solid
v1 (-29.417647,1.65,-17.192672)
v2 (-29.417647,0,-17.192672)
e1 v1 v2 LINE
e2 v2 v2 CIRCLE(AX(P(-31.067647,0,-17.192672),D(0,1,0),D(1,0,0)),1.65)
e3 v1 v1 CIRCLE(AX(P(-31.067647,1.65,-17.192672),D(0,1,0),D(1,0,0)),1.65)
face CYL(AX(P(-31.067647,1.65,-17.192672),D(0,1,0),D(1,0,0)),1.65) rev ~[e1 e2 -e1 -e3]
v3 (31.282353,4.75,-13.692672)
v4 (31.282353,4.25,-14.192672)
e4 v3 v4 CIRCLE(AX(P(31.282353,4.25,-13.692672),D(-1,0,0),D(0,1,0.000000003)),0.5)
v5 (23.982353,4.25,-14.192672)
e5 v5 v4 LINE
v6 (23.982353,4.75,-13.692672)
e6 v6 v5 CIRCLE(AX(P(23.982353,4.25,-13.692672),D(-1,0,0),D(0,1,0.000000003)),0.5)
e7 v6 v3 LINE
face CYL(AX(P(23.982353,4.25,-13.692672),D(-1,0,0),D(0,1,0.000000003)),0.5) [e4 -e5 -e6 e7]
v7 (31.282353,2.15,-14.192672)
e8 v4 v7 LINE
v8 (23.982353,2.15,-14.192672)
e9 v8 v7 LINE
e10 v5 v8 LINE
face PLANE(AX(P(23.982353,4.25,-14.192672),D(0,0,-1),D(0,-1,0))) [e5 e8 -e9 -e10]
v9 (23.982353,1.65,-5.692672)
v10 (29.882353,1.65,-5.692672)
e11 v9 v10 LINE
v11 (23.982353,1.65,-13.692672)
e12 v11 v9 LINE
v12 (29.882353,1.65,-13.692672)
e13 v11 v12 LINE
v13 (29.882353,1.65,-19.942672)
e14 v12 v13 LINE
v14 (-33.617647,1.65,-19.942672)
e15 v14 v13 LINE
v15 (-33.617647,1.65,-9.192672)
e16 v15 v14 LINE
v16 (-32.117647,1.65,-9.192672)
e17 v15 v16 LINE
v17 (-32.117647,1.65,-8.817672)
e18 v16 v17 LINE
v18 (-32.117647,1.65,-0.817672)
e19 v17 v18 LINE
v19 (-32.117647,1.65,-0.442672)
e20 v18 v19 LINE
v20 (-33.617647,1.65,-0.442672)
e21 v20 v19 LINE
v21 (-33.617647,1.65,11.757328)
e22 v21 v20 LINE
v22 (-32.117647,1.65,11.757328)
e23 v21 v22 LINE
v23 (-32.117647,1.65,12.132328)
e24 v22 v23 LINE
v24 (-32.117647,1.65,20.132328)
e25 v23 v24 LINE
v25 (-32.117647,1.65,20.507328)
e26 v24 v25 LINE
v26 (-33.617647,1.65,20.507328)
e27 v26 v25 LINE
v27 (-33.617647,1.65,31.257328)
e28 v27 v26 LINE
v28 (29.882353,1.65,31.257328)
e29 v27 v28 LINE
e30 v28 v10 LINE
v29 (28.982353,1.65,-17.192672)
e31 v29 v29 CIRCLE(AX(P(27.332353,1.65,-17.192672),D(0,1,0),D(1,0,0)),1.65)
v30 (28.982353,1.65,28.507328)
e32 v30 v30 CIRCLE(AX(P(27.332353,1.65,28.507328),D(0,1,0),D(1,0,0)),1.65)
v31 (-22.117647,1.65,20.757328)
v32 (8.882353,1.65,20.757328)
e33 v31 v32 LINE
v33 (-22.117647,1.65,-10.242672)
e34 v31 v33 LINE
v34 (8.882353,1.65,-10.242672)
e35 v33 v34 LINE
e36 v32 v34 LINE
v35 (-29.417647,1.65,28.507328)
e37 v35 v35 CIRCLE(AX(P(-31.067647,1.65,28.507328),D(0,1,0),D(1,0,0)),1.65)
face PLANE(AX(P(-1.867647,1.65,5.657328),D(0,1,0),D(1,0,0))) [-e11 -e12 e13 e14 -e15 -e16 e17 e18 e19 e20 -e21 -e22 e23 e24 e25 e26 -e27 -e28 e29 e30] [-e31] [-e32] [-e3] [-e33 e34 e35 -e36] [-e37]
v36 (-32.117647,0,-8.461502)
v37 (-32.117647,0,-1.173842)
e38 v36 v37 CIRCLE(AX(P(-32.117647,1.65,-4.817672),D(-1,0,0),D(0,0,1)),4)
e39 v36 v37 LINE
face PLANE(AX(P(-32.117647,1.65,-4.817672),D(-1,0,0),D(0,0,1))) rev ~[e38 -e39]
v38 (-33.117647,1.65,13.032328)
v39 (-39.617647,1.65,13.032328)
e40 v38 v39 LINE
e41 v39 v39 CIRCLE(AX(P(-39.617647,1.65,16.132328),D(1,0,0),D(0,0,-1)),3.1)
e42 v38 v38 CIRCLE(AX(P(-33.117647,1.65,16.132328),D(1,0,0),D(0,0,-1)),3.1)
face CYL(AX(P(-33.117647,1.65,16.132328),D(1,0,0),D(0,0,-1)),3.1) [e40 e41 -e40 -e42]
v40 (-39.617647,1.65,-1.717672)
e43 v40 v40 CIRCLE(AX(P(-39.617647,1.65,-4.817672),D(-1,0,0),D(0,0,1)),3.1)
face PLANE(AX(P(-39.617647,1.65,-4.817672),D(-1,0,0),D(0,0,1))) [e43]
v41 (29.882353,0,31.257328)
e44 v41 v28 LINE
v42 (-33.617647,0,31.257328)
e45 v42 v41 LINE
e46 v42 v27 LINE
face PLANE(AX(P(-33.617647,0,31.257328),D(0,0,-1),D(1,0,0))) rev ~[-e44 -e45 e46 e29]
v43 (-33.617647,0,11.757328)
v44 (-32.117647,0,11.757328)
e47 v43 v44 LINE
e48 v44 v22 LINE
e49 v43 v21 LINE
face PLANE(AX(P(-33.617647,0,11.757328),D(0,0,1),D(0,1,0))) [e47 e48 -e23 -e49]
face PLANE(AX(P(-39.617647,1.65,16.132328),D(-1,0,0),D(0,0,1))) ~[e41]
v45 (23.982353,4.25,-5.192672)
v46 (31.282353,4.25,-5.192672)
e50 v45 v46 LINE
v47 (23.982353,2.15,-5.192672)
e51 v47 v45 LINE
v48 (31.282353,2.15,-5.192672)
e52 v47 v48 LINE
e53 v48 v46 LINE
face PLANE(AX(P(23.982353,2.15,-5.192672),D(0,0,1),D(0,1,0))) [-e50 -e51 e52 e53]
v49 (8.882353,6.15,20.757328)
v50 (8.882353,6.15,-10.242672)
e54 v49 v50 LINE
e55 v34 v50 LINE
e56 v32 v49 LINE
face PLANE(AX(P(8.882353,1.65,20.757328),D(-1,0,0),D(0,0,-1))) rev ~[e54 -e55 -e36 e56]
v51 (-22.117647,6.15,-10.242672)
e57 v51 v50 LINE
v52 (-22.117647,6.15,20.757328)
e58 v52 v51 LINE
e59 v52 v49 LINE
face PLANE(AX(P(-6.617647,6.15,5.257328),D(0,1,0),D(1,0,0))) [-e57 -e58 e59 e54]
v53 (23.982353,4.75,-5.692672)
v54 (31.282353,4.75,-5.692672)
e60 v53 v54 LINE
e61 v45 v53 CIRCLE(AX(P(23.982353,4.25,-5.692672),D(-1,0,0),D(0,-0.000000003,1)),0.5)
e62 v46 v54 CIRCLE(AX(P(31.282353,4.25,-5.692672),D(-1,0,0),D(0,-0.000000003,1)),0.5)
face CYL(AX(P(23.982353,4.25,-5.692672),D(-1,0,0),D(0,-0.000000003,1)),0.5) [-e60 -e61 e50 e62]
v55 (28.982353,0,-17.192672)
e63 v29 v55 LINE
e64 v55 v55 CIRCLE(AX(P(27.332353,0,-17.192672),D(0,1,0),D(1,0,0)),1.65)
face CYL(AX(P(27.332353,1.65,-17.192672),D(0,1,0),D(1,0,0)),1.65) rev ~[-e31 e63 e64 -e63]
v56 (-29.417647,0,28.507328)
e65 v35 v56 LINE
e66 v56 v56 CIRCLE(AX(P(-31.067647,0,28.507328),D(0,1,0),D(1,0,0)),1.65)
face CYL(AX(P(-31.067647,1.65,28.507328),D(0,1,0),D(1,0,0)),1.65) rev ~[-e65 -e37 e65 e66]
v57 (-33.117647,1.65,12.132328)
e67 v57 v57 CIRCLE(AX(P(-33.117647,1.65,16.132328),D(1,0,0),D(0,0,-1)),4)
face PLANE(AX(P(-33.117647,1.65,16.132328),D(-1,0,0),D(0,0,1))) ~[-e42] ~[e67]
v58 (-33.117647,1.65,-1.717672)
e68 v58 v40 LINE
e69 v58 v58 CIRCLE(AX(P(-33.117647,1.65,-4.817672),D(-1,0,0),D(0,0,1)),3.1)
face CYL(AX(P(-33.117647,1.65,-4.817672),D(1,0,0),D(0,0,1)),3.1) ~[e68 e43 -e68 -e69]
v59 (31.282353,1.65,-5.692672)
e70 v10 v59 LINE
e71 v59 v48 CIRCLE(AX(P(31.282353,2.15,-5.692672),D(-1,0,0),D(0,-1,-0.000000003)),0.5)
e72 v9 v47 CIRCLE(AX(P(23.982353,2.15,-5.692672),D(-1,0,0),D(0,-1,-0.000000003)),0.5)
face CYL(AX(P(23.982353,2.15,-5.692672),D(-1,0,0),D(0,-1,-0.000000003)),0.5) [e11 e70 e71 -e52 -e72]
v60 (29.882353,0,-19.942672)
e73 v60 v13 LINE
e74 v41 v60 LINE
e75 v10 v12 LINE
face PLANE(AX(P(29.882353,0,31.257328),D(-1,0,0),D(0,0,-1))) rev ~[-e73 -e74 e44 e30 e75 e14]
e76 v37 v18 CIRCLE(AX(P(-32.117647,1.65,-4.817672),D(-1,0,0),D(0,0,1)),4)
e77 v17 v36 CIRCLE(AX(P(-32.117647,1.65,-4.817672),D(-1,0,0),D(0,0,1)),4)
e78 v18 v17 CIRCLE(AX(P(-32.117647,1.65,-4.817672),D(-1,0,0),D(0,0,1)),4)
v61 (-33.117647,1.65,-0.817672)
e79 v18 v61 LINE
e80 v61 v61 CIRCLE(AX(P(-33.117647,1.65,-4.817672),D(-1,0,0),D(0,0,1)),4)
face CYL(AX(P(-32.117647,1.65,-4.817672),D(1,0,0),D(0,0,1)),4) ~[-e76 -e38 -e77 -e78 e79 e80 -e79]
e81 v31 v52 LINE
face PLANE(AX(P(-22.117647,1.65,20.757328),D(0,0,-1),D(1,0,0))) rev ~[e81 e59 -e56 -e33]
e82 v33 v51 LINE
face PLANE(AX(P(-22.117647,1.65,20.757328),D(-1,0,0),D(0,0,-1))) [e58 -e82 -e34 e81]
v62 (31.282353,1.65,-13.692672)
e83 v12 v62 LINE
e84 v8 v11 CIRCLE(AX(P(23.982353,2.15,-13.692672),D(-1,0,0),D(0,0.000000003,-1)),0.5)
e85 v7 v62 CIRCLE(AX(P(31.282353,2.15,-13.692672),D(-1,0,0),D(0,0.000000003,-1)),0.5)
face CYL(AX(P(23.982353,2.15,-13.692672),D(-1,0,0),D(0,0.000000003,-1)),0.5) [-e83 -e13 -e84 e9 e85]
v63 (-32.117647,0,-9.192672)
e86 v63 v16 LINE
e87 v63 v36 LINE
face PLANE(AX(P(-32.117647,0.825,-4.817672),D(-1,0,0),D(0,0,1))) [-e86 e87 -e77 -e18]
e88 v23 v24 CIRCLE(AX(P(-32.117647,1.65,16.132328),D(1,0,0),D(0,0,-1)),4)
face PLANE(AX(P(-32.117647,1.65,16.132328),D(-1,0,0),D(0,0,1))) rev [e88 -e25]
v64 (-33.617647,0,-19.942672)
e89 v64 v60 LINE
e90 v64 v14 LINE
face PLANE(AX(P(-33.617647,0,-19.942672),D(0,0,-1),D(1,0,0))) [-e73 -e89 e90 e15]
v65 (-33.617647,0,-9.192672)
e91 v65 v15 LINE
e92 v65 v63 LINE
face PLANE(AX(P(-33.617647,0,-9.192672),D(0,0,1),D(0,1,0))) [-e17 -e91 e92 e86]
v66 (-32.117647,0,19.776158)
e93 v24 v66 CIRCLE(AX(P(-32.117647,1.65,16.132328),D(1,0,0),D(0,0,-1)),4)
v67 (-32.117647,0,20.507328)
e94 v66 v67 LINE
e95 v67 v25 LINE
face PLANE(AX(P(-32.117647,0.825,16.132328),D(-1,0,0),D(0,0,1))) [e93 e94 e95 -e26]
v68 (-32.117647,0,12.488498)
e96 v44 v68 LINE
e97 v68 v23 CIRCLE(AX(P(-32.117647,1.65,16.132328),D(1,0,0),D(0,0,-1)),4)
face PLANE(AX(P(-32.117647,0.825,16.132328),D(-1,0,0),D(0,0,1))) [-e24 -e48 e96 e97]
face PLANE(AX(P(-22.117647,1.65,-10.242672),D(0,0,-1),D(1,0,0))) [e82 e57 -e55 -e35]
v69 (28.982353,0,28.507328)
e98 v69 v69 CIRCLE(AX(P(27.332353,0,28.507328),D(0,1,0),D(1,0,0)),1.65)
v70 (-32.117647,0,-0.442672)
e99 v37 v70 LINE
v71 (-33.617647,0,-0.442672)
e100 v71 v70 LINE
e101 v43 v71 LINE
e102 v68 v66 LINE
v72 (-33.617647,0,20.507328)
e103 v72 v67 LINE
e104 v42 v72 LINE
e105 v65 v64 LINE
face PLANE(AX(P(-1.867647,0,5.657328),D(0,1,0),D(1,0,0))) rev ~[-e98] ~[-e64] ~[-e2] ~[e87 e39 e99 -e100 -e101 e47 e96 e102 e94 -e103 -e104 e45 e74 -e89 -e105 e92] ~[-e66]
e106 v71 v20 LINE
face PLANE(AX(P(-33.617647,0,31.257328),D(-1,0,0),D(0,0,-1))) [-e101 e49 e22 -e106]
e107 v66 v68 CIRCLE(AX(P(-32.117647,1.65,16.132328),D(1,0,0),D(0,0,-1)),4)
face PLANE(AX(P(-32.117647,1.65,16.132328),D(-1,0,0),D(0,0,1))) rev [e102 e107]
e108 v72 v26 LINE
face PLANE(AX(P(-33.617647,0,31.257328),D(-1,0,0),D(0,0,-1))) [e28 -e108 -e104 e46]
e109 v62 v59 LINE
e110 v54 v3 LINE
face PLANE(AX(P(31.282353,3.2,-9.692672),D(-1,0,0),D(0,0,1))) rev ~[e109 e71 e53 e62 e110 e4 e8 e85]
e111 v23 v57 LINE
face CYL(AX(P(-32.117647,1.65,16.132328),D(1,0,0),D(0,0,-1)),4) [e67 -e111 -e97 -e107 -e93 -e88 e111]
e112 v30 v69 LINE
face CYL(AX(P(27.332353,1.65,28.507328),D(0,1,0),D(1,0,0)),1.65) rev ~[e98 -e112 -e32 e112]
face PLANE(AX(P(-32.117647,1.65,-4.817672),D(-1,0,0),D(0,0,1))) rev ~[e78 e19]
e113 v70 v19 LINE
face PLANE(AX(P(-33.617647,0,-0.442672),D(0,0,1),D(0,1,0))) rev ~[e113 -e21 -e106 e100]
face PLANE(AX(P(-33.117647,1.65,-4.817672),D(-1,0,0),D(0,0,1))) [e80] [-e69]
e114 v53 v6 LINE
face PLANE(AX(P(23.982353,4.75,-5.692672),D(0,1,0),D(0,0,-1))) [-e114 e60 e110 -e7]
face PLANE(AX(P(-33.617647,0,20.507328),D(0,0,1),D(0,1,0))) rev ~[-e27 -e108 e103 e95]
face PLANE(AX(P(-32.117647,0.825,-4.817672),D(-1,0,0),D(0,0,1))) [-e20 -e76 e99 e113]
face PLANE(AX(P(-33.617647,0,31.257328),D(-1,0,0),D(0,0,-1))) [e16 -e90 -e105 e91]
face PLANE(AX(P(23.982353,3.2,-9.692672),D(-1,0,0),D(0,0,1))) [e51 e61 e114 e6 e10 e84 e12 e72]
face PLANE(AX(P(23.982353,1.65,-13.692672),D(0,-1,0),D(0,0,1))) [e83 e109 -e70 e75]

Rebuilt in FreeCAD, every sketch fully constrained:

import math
import FreeCAD as App
import Part
import Sketcher
Q = App.Units.Quantity


def add_polygon(sketch, points):
    """Adds a closed chain of lines whose ends are joined by coincident constraints."""
    first, n = sketch.GeometryCount, len(points)
    for a, b in zip(points, points[1:] + points[:1]):
        sketch.addGeometry(Part.LineSegment(App.Vector(*a, 0), App.Vector(*b, 0)), False)
    for i in range(n):
        sketch.addConstraint(Sketcher.Constraint("Coincident", first + i, 2, first + (i + 1) % n, 1))

doc = App.newDocument("Part")
body = doc.addObject("PartDesign::Body", "Body")

# Sketch on XZ plane
sketch1 = body.newObject("Sketcher::SketchObject", "Sketch")
sketch1.AttachmentSupport = (doc.getObject("XZ_Plane"), [""])
sketch1.MapMode = "FlatFace"
add_polygon(sketch1, [(-33.617647, -19.942672), (-33.617647, 31.257328), (29.882353, 31.257328), (29.882353, -19.942672)])  # lines 0-3
sketch1.addConstraint([
    Sketcher.Constraint("Vertical", 0),
    Sketcher.Constraint("Horizontal", 1),
    Sketcher.Constraint("Vertical", 2),
    Sketcher.Constraint("Horizontal", 3),
    Sketcher.Constraint("DistanceX", 1, 1, 1, 2, Q("63.5 mm")),
    Sketcher.Constraint("DistanceY", 0, 1, 0, 2, Q("51.2 mm")),
    Sketcher.Constraint("DistanceY", -1, 1, 0, 2, Q("31.257328 mm")),
    Sketcher.Constraint("DistanceX", 0, 2, -1, 1, Q("33.617647 mm")),
])
pad1 = body.newObject("PartDesign::Pad", "Pad")
pad1.Profile = sketch1
pad1.Length = 1.65
pad1.Reversed = True

# Sketch on XZ plane
sketch2 = body.newObject("Sketcher::SketchObject", "Sketch001")
sketch2.AttachmentSupport = (doc.getObject("XZ_Plane"), [""])
sketch2.MapMode = "FlatFace"
sketch2.AttachmentOffset = App.Placement(App.Vector(0, 0, -1.65), App.Rotation())
add_polygon(sketch2, [(-22.117647, -10.242672), (-22.117647, 20.757328), (8.882353, 20.757328), (8.882353, -10.242672)])  # lines 0-3
sketch2.addConstraint([
    Sketcher.Constraint("Vertical", 0),
    Sketcher.Constraint("Horizontal", 1),
    Sketcher.Constraint("Vertical", 2),
    Sketcher.Constraint("Horizontal", 3),
    Sketcher.Constraint("Equal", 3, 0),
    Sketcher.Constraint("DistanceX", 1, 1, 1, 2, Q("31 mm")),
    Sketcher.Constraint("DistanceY", -1, 1, 0, 2, Q("20.757328 mm")),
    Sketcher.Constraint("DistanceX", 0, 2, -1, 1, Q("22.117647 mm")),
])
pad2 = body.newObject("PartDesign::Pad", "Pad001")
pad2.Profile = sketch2
pad2.Length = 4.5
pad2.Reversed = True

# Sketch on YZ plane
sketch3 = body.newObject("Sketcher::SketchObject", "Sketch002")
sketch3.AttachmentSupport = (doc.getObject("YZ_Plane"), [""])
sketch3.MapMode = "FlatFace"
sketch3.AttachmentOffset = App.Placement(App.Vector(0, 0, -33.617647), App.Rotation())
add_polygon(sketch3, [(1.65, -9.192672), (0, -9.192672), (0, -0.442672), (1.65, -0.442672)])  # lines 0-3
add_polygon(sketch3, [(1.65, 11.757328), (0, 11.757328), (0, 20.507328), (1.65, 20.507328)])  # lines 4-7
sketch3.addConstraint([
    Sketcher.Constraint("Horizontal", 0),
    Sketcher.Constraint("Vertical", 1),
    Sketcher.Constraint("Horizontal", 2),
    Sketcher.Constraint("Vertical", 3),
    Sketcher.Constraint("Horizontal", 4),
    Sketcher.Constraint("Vertical", 5),
    Sketcher.Constraint("Horizontal", 6),
    Sketcher.Constraint("Vertical", 7),
    Sketcher.Constraint("PointOnObject", 0, 2, -2),
    Sketcher.Constraint("PointOnObject", 4, 2, -2),
    Sketcher.Constraint("Vertical", 3, 2, 6, 2),
    Sketcher.Constraint("Equal", 3, 5),
    Sketcher.Constraint("DistanceX", 0, 2, 0, 1, Q("1.65 mm")),
    Sketcher.Constraint("DistanceY", 1, 1, 1, 2, Q("8.75 mm")),
    Sketcher.Constraint("DistanceY", 1, 2, 4, 2, Q("12.2 mm")),
    Sketcher.Constraint("DistanceY", 0, 2, -1, 1, Q("9.192672 mm")),
])
pocket1 = body.newObject("PartDesign::Pocket", "Pocket")
pocket1.Profile = sketch3
pocket1.Length = 1.5
pocket1.Reversed = True

# Sketch on YZ plane
sketch4 = body.newObject("Sketcher::SketchObject", "Sketch003")
sketch4.AttachmentSupport = (doc.getObject("YZ_Plane"), [""])
sketch4.MapMode = "FlatFace"
sketch4.AttachmentOffset = App.Placement(App.Vector(0, 0, -32.117647), App.Rotation())
sketch4.addGeometry(Part.Circle(App.Vector(1.65, -4.817672, 0), App.Vector(0, 0, 1), 4), False)
sketch4.addConstraint([
    Sketcher.Constraint("Diameter", 0, Q("8 mm")),
    Sketcher.Constraint("DistanceX", -1, 1, 0, 3, Q("1.65 mm")),
    Sketcher.Constraint("DistanceY", 0, 3, -1, 1, Q("4.817672 mm")),
])
pad3 = body.newObject("PartDesign::Pad", "Pad002")
pad3.Profile = sketch4
pad3.Length = 1
pad3.Reversed = True

# Sketch on YZ plane
sketch5 = body.newObject("Sketcher::SketchObject", "Sketch004")
sketch5.AttachmentSupport = (doc.getObject("YZ_Plane"), [""])
sketch5.MapMode = "FlatFace"
sketch5.AttachmentOffset = App.Placement(App.Vector(0, 0, -33.117647), App.Rotation())
sketch5.addGeometry(Part.Circle(App.Vector(1.65, -4.817672, 0), App.Vector(0, 0, 1), 3.1), False)
sketch5.addConstraint([
    Sketcher.Constraint("Diameter", 0, Q("6.2 mm")),
    Sketcher.Constraint("DistanceX", -1, 1, 0, 3, Q("1.65 mm")),
    Sketcher.Constraint("DistanceY", 0, 3, -1, 1, Q("4.817672 mm")),
])
pad4 = body.newObject("PartDesign::Pad", "Pad003")
pad4.Profile = sketch5
pad4.Length = 6.5
pad4.Reversed = True
doc.recompute()

datumplane = body.newObject("PartDesign::Plane", "DatumPlane")
datumplane.AttachmentSupport = (doc.getObject("XY_Plane"), [""])
datumplane.MapMode = "FlatFace"
datumplane.AttachmentOffset = App.Placement(App.Vector(0, 0, 5.657328), App.Rotation())
mirrored = body.newObject("PartDesign::Mirrored", "Mirrored")
mirrored.Originals = [pad3, pad4]
mirrored.MirrorPlane = (datumplane, [""])
body.Tip = mirrored

# Sketch on XZ plane
sketch6 = body.newObject("Sketcher::SketchObject", "Sketch005")
sketch6.AttachmentSupport = (doc.getObject("XZ_Plane"), [""])
sketch6.MapMode = "FlatFace"
sketch6.AttachmentOffset = App.Placement(App.Vector(0, 0, -1.65), App.Rotation())
sketch6.addGeometry([
    Part.Circle(App.Vector(-31.067647, -17.192672, 0), App.Vector(0, 0, 1), 1.65),
    Part.Circle(App.Vector(-31.067647, 28.507328, 0), App.Vector(0, 0, 1), 1.65),
    Part.Circle(App.Vector(27.332353, 28.507328, 0), App.Vector(0, 0, 1), 1.65),
    Part.Circle(App.Vector(27.332353, -17.192672, 0), App.Vector(0, 0, 1), 1.65),
], False)
sketch6.addConstraint([
    Sketcher.Constraint("Equal", 0, 1),
    Sketcher.Constraint("Equal", 1, 2),
    Sketcher.Constraint("Equal", 2, 3),
    Sketcher.Constraint("Horizontal", 1, 3, 2, 3),
    Sketcher.Constraint("Horizontal", 0, 3, 3, 3),
    Sketcher.Constraint("Vertical", 0, 3, 1, 3),
    Sketcher.Constraint("Vertical", 2, 3, 3, 3),
    Sketcher.Constraint("Diameter", 0, Q("3.3 mm")),
    Sketcher.Constraint("DistanceY", 0, 3, 1, 3, Q("45.7 mm")),
    Sketcher.Constraint("DistanceX", 1, 3, 2, 3, Q("58.4 mm")),
    Sketcher.Constraint("DistanceY", 0, 3, -1, 1, Q("17.192672 mm")),
    Sketcher.Constraint("DistanceX", 0, 3, -1, 1, Q("31.067647 mm")),
])
pocket2 = body.newObject("PartDesign::Pocket", "Pocket001")
pocket2.Profile = sketch6
pocket2.Type = "ThroughAll"
pocket2.Midplane = True

# Sketch on YZ plane
sketch7 = body.newObject("Sketcher::SketchObject", "Sketch006")
sketch7.AttachmentSupport = (doc.getObject("YZ_Plane"), [""])
sketch7.MapMode = "FlatFace"
sketch7.AttachmentOffset = App.Placement(App.Vector(0, 0, 23.982353), App.Rotation())
sketch7.addGeometry([
    Part.LineSegment(App.Vector(1.65, -5.692672, 0), App.Vector(1.65, -13.692672, 0)),  # 0
    Part.ArcOfCircle(Part.Circle(App.Vector(2.15, -13.692672, 0), App.Vector(0, 0, 1), 0.5), math.radians(180), math.radians(270)),  # 1
    Part.LineSegment(App.Vector(2.15, -14.192672, 0), App.Vector(4.25, -14.192672, 0)),  # 2
    Part.ArcOfCircle(Part.Circle(App.Vector(4.25, -13.692672, 0), App.Vector(0, 0, 1), 0.5), math.radians(-90), math.radians(0)),  # 3
    Part.LineSegment(App.Vector(4.75, -13.692672, 0), App.Vector(4.75, -5.692672, 0)),  # 4
    Part.ArcOfCircle(Part.Circle(App.Vector(4.25, -5.692672, 0), App.Vector(0, 0, 1), 0.5), math.radians(0), math.radians(90)),  # 5
    Part.LineSegment(App.Vector(4.25, -5.192672, 0), App.Vector(2.15, -5.192672, 0)),  # 6
    Part.ArcOfCircle(Part.Circle(App.Vector(2.15, -5.692672, 0), App.Vector(0, 0, 1), 0.5), math.radians(90), math.radians(180)),  # 7
], False)
sketch7.addConstraint([
    Sketcher.Constraint("Tangent", 0, 2, 1, 1),
    Sketcher.Constraint("Tangent", 1, 2, 2, 1),
    Sketcher.Constraint("Tangent", 2, 2, 3, 1),
    Sketcher.Constraint("Tangent", 3, 2, 4, 1),
    Sketcher.Constraint("Tangent", 4, 2, 5, 1),
    Sketcher.Constraint("Tangent", 5, 2, 6, 1),
    Sketcher.Constraint("Tangent", 6, 2, 7, 1),
    Sketcher.Constraint("Tangent", 7, 2, 0, 1),
    Sketcher.Constraint("Vertical", 0),
    Sketcher.Constraint("Horizontal", 2),
    Sketcher.Constraint("Vertical", 4),
    Sketcher.Constraint("Horizontal", 6),
    Sketcher.Constraint("Equal", 1, 3),
    Sketcher.Constraint("Equal", 3, 5),
    Sketcher.Constraint("Equal", 5, 7),
    Sketcher.Constraint("Radius", 1, Q("0.5 mm")),
    Sketcher.Constraint("DistanceY", 0, 2, 0, 1, Q("8 mm")),
    Sketcher.Constraint("DistanceX", 2, 1, 2, 2, Q("2.1 mm")),
    Sketcher.Constraint("DistanceX", -1, 1, 1, 3, Q("2.15 mm")),
    Sketcher.Constraint("DistanceY", 1, 3, -1, 1, Q("13.692672 mm")),
])
pad5 = body.newObject("PartDesign::Pad", "Pad004")
pad5.Profile = sketch7
pad5.Length = 7.3

doc.recompute()
